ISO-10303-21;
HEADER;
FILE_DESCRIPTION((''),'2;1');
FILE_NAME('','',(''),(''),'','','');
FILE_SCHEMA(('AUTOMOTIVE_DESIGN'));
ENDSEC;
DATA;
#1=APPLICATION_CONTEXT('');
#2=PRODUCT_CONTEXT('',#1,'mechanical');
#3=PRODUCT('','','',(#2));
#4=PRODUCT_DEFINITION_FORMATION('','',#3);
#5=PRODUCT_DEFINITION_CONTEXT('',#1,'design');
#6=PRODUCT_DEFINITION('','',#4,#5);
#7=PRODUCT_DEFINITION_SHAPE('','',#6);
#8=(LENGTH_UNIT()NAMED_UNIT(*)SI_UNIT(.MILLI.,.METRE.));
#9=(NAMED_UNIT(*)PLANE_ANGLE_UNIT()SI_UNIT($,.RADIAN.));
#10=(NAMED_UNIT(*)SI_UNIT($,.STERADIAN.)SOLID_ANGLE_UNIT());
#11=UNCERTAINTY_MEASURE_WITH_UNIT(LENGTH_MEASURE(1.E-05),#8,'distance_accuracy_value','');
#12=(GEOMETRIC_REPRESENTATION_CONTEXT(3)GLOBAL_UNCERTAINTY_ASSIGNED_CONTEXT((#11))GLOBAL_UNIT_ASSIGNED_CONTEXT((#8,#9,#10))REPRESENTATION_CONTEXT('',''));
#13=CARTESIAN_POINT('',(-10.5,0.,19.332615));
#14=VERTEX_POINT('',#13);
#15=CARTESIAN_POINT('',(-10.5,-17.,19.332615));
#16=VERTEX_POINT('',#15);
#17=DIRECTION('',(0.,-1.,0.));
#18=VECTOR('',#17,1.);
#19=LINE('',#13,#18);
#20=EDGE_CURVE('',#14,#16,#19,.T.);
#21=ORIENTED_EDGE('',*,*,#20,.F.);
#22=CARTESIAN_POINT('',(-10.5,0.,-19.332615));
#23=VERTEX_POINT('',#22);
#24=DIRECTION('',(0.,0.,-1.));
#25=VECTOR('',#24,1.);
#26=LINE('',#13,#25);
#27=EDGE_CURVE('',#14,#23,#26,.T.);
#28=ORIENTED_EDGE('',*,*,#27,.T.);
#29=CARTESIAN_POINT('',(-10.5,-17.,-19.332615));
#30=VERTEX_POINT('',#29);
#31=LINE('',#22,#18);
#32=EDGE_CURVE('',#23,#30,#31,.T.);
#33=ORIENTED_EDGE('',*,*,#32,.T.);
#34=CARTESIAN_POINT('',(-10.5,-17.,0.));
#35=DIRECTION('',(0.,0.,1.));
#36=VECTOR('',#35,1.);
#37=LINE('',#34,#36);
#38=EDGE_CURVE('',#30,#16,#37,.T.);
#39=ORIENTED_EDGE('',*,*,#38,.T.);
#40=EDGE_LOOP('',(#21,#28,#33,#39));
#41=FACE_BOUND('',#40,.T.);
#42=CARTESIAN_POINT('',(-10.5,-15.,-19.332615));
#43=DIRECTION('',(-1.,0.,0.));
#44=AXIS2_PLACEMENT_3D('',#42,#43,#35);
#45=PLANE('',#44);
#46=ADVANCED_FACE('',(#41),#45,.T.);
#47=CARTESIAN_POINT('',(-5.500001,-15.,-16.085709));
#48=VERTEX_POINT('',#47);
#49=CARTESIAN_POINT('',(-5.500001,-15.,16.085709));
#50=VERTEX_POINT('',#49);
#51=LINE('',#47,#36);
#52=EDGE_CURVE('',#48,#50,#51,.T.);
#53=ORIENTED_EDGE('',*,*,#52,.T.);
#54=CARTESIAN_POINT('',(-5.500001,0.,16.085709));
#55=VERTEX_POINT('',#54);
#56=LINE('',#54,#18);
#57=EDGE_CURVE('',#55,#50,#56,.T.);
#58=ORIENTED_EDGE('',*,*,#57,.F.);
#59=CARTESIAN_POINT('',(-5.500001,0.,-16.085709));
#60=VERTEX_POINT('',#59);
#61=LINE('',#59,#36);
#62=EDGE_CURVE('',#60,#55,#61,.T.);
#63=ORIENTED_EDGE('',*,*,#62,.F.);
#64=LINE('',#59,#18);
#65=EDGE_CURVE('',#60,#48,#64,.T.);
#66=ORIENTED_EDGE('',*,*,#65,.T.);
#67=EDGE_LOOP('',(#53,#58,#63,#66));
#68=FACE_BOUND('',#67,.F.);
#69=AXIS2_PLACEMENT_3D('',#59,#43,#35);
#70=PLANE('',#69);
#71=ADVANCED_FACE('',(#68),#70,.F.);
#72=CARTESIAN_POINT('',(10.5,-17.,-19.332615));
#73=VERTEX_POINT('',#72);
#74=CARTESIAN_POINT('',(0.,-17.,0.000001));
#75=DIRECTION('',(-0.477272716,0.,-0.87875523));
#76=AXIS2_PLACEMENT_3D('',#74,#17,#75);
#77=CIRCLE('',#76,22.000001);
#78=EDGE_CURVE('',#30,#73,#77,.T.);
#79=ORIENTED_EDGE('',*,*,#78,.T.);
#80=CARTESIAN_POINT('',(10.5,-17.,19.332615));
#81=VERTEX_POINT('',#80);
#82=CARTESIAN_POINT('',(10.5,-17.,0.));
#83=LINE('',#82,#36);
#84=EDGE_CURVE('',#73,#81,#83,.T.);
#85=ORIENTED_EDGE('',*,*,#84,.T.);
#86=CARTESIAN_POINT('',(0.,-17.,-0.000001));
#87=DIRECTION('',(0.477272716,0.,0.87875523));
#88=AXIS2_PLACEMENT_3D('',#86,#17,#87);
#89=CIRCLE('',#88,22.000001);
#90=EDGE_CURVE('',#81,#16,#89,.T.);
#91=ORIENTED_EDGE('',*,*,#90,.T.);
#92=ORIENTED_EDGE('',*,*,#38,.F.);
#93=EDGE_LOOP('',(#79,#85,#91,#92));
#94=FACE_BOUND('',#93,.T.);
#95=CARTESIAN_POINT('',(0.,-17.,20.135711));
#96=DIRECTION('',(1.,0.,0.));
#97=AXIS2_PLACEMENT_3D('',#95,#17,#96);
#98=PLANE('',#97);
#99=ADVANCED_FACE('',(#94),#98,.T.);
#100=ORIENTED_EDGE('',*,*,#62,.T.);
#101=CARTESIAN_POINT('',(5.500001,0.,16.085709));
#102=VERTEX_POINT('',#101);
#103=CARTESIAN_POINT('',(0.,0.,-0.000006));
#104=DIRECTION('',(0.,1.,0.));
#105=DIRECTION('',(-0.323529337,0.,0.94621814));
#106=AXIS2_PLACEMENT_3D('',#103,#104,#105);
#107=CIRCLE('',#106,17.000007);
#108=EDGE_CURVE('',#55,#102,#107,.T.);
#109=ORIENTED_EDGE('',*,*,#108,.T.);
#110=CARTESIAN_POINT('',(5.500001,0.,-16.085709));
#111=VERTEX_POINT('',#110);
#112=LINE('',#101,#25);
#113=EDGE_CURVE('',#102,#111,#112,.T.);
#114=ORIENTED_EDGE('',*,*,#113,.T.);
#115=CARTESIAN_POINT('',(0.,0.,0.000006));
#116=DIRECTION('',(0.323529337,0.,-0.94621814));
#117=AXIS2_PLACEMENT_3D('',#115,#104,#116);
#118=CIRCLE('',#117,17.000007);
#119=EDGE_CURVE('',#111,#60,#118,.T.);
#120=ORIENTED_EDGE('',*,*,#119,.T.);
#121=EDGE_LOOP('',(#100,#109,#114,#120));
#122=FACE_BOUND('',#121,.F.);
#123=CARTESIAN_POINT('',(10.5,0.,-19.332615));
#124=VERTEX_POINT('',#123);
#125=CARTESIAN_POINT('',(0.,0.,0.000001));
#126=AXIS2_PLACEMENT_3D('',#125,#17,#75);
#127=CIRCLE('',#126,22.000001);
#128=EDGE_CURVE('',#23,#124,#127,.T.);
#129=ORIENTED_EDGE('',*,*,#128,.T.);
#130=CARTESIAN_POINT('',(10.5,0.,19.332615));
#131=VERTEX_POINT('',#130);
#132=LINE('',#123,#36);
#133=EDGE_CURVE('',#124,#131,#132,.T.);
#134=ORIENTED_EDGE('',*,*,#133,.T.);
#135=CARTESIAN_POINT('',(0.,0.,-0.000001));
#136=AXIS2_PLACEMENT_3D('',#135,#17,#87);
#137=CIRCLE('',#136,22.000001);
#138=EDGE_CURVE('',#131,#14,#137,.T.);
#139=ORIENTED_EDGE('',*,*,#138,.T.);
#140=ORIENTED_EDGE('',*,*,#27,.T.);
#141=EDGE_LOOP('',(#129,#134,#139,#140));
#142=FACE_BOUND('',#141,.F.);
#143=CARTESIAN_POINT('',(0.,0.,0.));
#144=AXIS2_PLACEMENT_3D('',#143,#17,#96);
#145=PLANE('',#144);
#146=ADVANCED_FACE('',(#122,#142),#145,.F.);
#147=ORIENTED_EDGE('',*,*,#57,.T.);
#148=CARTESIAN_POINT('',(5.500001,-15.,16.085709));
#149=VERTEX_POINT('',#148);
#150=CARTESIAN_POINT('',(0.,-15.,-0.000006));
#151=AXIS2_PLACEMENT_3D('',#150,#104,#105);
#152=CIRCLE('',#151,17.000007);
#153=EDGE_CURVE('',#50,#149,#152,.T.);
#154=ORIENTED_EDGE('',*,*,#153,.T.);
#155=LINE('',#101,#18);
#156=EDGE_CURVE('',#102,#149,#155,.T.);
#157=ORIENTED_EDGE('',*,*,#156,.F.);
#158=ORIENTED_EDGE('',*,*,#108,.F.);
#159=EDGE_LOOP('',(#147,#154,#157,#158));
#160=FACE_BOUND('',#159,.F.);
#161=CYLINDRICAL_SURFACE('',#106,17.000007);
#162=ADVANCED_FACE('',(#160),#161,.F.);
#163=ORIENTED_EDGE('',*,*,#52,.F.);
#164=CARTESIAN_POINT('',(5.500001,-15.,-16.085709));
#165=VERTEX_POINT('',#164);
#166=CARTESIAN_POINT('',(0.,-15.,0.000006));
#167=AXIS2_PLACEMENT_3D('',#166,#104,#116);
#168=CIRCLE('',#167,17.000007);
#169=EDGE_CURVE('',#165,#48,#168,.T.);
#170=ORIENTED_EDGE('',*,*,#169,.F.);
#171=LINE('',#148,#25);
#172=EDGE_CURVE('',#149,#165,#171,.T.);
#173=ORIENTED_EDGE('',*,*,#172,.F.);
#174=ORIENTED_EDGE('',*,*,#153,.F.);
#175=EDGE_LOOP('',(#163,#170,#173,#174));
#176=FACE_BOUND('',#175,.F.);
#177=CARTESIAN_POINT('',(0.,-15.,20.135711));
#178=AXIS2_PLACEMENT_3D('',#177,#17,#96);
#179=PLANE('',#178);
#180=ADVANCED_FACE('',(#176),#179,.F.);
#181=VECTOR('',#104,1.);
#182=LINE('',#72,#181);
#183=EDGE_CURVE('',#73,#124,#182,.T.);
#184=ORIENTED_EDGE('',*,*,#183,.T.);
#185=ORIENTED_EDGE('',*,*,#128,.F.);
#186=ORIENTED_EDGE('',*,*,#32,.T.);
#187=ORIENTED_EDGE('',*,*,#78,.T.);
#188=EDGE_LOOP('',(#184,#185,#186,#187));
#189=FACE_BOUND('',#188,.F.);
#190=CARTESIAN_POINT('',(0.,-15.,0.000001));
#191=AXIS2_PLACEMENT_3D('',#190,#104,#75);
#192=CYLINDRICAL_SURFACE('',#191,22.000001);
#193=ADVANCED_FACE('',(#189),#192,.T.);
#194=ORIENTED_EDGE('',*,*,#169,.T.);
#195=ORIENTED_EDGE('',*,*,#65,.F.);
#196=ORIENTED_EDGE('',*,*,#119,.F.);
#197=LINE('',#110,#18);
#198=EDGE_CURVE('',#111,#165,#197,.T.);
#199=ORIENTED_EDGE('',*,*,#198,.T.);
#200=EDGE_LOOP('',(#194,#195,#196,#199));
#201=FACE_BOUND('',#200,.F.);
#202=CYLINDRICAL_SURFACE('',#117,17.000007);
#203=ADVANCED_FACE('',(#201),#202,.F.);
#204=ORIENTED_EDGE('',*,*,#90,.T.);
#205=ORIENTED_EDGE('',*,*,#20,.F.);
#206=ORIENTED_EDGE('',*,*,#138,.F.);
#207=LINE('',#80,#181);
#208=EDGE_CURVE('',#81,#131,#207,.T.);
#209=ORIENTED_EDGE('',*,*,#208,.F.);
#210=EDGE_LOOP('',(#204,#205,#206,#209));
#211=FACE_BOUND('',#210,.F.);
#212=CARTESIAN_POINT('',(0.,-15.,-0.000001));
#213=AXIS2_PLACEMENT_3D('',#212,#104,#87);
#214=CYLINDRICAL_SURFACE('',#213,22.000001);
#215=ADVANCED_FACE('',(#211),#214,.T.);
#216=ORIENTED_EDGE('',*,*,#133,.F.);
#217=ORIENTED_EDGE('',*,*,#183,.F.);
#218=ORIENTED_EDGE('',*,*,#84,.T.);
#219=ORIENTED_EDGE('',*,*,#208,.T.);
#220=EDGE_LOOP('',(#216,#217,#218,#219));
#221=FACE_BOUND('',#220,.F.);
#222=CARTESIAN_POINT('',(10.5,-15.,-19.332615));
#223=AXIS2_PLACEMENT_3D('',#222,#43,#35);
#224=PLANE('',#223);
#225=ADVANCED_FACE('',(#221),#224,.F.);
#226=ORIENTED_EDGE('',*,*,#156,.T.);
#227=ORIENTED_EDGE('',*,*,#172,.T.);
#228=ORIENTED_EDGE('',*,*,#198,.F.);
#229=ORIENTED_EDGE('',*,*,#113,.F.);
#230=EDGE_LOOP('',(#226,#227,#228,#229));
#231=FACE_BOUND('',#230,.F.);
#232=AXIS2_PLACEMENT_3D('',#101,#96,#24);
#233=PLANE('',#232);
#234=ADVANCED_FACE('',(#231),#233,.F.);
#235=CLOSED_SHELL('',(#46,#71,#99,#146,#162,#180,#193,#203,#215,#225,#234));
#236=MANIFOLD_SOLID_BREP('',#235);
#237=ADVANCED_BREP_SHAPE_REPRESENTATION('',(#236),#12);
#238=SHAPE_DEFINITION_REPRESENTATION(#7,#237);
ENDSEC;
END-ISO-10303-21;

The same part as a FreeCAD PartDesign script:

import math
import FreeCAD as App
import Part
import Sketcher
from FreeCAD import Vector

doc = App.newDocument("Part")
body = doc.addObject("PartDesign::Body", "Body")

sketch1 = body.newObject("Sketcher::SketchObject", "Sketch")
sketch1.AttachmentSupport = (doc.getObject("XZ_Plane"), [""])
sketch1.MapMode = "FlatFace"
sketch1.addGeometry([
    Part.LineSegment(Vector(-10, 19, 0), Vector(-10, -19, 0)),
    Part.ArcOfCircle(Part.Circle(Vector(0, 0, 0), Vector(0, 0, 1), 22), math.radians(-119), math.radians(-61)),
    Part.LineSegment(Vector(10, -19, 0), Vector(10, 19, 0)),
    Part.ArcOfCircle(Part.Circle(Vector(0, 0, 0), Vector(0, 0, 1), 22), math.radians(61), math.radians(119)),
    Part.LineSegment(Vector(-6, -16, 0), Vector(-6, 16, 0)),
    Part.ArcOfCircle(Part.Circle(Vector(0, 0, 0), Vector(0, 0, 1), 17), math.radians(71), math.radians(109)),
    Part.LineSegment(Vector(6, 16, 0), Vector(6, -16, 0)),
    Part.ArcOfCircle(Part.Circle(Vector(0, 0, 0), Vector(0, 0, 1), 17), math.radians(-109), math.radians(-71)),
], False)
sketch1.addConstraint([
    Sketcher.Constraint("Coincident", 0, 2, 1, 1),
    Sketcher.Constraint("Coincident", 1, 2, 2, 1),
    Sketcher.Constraint("Coincident", 2, 2, 3, 1),
    Sketcher.Constraint("Coincident", 3, 2, 0, 1),
    Sketcher.Constraint("Coincident", 4, 2, 5, 2),
    Sketcher.Constraint("Coincident", 5, 1, 6, 1),
    Sketcher.Constraint("Coincident", 6, 2, 7, 2),
    Sketcher.Constraint("Coincident", 7, 1, 4, 1),
    Sketcher.Constraint("Vertical", 0),
    Sketcher.Constraint("Vertical", 2),
    Sketcher.Constraint("Vertical", 4),
    Sketcher.Constraint("Vertical", 6),
    Sketcher.Constraint("Coincident", 1, 3, -1, 1),
    Sketcher.Constraint("Coincident", 3, 3, -1, 1),
    Sketcher.Constraint("Coincident", 5, 3, -1, 1),
    Sketcher.Constraint("Coincident", 7, 3, -1, 1),
    Sketcher.Constraint("Equal", 1, 3),
    Sketcher.Constraint("Equal", 5, 7),
    Sketcher.Constraint("Horizontal", 0, 2, 1, 2),
    Sketcher.Constraint("Horizontal", 4, 2, 5, 1),
    Sketcher.Constraint("Radius", 1, 22.000001),
    Sketcher.Constraint("DistanceX", 0, 2, 1, 2, 21.0),
    Sketcher.Constraint("DistanceX", 3, 2, 4, 2, 4.999999),
    Sketcher.Constraint("Radius", 5, 17.000007),
])
pad1 = body.newObject("PartDesign::Pad", "Pad")
pad1.Profile = sketch1
pad1.Length = 15

sketch2 = body.newObject("Sketcher::SketchObject", "Sketch001")
sketch2.AttachmentSupport = (doc.getObject("XZ_Plane"), [""])
sketch2.MapMode = "FlatFace"
sketch2.AttachmentOffset = App.Placement(Vector(0, 0, 15), App.Rotation())
sketch2.addGeometry([
    Part.ArcOfCircle(Part.Circle(Vector(0, 0, 0), Vector(0, 0, 1), 22), math.radians(61), math.radians(119)),
    Part.LineSegment(Vector(-10, 19, 0), Vector(-10, -19, 0)),
    Part.ArcOfCircle(Part.Circle(Vector(0, 0, 0), Vector(0, 0, 1), 22), math.radians(-119), math.radians(-61)),
    Part.LineSegment(Vector(10, -19, 0), Vector(10, 19, 0)),
], False)
sketch2.addConstraint([
    Sketcher.Constraint("Coincident", 0, 2, 1, 1),
    Sketcher.Constraint("Coincident", 1, 2, 2, 1),
    Sketcher.Constraint("Coincident", 2, 2, 3, 1),
    Sketcher.Constraint("Coincident", 3, 2, 0, 1),
    Sketcher.Constraint("Vertical", 1),
    Sketcher.Constraint("Vertical", 3),
    Sketcher.Constraint("Coincident", 0, 3, -1, 1),
    Sketcher.Constraint("Coincident", 2, 3, -1, 1),
    Sketcher.Constraint("Equal", 0, 2),
    Sketcher.Constraint("Horizontal", 1, 2, 2, 2),
    Sketcher.Constraint("Radius", 0, 22.000001),
    Sketcher.Constraint("DistanceX", 1, 2, 2, 2, 21.0),
])
pad2 = body.newObject("PartDesign::Pad", "Pad001")
pad2.Profile = sketch2
pad2.Length = 2

doc.recompute()
